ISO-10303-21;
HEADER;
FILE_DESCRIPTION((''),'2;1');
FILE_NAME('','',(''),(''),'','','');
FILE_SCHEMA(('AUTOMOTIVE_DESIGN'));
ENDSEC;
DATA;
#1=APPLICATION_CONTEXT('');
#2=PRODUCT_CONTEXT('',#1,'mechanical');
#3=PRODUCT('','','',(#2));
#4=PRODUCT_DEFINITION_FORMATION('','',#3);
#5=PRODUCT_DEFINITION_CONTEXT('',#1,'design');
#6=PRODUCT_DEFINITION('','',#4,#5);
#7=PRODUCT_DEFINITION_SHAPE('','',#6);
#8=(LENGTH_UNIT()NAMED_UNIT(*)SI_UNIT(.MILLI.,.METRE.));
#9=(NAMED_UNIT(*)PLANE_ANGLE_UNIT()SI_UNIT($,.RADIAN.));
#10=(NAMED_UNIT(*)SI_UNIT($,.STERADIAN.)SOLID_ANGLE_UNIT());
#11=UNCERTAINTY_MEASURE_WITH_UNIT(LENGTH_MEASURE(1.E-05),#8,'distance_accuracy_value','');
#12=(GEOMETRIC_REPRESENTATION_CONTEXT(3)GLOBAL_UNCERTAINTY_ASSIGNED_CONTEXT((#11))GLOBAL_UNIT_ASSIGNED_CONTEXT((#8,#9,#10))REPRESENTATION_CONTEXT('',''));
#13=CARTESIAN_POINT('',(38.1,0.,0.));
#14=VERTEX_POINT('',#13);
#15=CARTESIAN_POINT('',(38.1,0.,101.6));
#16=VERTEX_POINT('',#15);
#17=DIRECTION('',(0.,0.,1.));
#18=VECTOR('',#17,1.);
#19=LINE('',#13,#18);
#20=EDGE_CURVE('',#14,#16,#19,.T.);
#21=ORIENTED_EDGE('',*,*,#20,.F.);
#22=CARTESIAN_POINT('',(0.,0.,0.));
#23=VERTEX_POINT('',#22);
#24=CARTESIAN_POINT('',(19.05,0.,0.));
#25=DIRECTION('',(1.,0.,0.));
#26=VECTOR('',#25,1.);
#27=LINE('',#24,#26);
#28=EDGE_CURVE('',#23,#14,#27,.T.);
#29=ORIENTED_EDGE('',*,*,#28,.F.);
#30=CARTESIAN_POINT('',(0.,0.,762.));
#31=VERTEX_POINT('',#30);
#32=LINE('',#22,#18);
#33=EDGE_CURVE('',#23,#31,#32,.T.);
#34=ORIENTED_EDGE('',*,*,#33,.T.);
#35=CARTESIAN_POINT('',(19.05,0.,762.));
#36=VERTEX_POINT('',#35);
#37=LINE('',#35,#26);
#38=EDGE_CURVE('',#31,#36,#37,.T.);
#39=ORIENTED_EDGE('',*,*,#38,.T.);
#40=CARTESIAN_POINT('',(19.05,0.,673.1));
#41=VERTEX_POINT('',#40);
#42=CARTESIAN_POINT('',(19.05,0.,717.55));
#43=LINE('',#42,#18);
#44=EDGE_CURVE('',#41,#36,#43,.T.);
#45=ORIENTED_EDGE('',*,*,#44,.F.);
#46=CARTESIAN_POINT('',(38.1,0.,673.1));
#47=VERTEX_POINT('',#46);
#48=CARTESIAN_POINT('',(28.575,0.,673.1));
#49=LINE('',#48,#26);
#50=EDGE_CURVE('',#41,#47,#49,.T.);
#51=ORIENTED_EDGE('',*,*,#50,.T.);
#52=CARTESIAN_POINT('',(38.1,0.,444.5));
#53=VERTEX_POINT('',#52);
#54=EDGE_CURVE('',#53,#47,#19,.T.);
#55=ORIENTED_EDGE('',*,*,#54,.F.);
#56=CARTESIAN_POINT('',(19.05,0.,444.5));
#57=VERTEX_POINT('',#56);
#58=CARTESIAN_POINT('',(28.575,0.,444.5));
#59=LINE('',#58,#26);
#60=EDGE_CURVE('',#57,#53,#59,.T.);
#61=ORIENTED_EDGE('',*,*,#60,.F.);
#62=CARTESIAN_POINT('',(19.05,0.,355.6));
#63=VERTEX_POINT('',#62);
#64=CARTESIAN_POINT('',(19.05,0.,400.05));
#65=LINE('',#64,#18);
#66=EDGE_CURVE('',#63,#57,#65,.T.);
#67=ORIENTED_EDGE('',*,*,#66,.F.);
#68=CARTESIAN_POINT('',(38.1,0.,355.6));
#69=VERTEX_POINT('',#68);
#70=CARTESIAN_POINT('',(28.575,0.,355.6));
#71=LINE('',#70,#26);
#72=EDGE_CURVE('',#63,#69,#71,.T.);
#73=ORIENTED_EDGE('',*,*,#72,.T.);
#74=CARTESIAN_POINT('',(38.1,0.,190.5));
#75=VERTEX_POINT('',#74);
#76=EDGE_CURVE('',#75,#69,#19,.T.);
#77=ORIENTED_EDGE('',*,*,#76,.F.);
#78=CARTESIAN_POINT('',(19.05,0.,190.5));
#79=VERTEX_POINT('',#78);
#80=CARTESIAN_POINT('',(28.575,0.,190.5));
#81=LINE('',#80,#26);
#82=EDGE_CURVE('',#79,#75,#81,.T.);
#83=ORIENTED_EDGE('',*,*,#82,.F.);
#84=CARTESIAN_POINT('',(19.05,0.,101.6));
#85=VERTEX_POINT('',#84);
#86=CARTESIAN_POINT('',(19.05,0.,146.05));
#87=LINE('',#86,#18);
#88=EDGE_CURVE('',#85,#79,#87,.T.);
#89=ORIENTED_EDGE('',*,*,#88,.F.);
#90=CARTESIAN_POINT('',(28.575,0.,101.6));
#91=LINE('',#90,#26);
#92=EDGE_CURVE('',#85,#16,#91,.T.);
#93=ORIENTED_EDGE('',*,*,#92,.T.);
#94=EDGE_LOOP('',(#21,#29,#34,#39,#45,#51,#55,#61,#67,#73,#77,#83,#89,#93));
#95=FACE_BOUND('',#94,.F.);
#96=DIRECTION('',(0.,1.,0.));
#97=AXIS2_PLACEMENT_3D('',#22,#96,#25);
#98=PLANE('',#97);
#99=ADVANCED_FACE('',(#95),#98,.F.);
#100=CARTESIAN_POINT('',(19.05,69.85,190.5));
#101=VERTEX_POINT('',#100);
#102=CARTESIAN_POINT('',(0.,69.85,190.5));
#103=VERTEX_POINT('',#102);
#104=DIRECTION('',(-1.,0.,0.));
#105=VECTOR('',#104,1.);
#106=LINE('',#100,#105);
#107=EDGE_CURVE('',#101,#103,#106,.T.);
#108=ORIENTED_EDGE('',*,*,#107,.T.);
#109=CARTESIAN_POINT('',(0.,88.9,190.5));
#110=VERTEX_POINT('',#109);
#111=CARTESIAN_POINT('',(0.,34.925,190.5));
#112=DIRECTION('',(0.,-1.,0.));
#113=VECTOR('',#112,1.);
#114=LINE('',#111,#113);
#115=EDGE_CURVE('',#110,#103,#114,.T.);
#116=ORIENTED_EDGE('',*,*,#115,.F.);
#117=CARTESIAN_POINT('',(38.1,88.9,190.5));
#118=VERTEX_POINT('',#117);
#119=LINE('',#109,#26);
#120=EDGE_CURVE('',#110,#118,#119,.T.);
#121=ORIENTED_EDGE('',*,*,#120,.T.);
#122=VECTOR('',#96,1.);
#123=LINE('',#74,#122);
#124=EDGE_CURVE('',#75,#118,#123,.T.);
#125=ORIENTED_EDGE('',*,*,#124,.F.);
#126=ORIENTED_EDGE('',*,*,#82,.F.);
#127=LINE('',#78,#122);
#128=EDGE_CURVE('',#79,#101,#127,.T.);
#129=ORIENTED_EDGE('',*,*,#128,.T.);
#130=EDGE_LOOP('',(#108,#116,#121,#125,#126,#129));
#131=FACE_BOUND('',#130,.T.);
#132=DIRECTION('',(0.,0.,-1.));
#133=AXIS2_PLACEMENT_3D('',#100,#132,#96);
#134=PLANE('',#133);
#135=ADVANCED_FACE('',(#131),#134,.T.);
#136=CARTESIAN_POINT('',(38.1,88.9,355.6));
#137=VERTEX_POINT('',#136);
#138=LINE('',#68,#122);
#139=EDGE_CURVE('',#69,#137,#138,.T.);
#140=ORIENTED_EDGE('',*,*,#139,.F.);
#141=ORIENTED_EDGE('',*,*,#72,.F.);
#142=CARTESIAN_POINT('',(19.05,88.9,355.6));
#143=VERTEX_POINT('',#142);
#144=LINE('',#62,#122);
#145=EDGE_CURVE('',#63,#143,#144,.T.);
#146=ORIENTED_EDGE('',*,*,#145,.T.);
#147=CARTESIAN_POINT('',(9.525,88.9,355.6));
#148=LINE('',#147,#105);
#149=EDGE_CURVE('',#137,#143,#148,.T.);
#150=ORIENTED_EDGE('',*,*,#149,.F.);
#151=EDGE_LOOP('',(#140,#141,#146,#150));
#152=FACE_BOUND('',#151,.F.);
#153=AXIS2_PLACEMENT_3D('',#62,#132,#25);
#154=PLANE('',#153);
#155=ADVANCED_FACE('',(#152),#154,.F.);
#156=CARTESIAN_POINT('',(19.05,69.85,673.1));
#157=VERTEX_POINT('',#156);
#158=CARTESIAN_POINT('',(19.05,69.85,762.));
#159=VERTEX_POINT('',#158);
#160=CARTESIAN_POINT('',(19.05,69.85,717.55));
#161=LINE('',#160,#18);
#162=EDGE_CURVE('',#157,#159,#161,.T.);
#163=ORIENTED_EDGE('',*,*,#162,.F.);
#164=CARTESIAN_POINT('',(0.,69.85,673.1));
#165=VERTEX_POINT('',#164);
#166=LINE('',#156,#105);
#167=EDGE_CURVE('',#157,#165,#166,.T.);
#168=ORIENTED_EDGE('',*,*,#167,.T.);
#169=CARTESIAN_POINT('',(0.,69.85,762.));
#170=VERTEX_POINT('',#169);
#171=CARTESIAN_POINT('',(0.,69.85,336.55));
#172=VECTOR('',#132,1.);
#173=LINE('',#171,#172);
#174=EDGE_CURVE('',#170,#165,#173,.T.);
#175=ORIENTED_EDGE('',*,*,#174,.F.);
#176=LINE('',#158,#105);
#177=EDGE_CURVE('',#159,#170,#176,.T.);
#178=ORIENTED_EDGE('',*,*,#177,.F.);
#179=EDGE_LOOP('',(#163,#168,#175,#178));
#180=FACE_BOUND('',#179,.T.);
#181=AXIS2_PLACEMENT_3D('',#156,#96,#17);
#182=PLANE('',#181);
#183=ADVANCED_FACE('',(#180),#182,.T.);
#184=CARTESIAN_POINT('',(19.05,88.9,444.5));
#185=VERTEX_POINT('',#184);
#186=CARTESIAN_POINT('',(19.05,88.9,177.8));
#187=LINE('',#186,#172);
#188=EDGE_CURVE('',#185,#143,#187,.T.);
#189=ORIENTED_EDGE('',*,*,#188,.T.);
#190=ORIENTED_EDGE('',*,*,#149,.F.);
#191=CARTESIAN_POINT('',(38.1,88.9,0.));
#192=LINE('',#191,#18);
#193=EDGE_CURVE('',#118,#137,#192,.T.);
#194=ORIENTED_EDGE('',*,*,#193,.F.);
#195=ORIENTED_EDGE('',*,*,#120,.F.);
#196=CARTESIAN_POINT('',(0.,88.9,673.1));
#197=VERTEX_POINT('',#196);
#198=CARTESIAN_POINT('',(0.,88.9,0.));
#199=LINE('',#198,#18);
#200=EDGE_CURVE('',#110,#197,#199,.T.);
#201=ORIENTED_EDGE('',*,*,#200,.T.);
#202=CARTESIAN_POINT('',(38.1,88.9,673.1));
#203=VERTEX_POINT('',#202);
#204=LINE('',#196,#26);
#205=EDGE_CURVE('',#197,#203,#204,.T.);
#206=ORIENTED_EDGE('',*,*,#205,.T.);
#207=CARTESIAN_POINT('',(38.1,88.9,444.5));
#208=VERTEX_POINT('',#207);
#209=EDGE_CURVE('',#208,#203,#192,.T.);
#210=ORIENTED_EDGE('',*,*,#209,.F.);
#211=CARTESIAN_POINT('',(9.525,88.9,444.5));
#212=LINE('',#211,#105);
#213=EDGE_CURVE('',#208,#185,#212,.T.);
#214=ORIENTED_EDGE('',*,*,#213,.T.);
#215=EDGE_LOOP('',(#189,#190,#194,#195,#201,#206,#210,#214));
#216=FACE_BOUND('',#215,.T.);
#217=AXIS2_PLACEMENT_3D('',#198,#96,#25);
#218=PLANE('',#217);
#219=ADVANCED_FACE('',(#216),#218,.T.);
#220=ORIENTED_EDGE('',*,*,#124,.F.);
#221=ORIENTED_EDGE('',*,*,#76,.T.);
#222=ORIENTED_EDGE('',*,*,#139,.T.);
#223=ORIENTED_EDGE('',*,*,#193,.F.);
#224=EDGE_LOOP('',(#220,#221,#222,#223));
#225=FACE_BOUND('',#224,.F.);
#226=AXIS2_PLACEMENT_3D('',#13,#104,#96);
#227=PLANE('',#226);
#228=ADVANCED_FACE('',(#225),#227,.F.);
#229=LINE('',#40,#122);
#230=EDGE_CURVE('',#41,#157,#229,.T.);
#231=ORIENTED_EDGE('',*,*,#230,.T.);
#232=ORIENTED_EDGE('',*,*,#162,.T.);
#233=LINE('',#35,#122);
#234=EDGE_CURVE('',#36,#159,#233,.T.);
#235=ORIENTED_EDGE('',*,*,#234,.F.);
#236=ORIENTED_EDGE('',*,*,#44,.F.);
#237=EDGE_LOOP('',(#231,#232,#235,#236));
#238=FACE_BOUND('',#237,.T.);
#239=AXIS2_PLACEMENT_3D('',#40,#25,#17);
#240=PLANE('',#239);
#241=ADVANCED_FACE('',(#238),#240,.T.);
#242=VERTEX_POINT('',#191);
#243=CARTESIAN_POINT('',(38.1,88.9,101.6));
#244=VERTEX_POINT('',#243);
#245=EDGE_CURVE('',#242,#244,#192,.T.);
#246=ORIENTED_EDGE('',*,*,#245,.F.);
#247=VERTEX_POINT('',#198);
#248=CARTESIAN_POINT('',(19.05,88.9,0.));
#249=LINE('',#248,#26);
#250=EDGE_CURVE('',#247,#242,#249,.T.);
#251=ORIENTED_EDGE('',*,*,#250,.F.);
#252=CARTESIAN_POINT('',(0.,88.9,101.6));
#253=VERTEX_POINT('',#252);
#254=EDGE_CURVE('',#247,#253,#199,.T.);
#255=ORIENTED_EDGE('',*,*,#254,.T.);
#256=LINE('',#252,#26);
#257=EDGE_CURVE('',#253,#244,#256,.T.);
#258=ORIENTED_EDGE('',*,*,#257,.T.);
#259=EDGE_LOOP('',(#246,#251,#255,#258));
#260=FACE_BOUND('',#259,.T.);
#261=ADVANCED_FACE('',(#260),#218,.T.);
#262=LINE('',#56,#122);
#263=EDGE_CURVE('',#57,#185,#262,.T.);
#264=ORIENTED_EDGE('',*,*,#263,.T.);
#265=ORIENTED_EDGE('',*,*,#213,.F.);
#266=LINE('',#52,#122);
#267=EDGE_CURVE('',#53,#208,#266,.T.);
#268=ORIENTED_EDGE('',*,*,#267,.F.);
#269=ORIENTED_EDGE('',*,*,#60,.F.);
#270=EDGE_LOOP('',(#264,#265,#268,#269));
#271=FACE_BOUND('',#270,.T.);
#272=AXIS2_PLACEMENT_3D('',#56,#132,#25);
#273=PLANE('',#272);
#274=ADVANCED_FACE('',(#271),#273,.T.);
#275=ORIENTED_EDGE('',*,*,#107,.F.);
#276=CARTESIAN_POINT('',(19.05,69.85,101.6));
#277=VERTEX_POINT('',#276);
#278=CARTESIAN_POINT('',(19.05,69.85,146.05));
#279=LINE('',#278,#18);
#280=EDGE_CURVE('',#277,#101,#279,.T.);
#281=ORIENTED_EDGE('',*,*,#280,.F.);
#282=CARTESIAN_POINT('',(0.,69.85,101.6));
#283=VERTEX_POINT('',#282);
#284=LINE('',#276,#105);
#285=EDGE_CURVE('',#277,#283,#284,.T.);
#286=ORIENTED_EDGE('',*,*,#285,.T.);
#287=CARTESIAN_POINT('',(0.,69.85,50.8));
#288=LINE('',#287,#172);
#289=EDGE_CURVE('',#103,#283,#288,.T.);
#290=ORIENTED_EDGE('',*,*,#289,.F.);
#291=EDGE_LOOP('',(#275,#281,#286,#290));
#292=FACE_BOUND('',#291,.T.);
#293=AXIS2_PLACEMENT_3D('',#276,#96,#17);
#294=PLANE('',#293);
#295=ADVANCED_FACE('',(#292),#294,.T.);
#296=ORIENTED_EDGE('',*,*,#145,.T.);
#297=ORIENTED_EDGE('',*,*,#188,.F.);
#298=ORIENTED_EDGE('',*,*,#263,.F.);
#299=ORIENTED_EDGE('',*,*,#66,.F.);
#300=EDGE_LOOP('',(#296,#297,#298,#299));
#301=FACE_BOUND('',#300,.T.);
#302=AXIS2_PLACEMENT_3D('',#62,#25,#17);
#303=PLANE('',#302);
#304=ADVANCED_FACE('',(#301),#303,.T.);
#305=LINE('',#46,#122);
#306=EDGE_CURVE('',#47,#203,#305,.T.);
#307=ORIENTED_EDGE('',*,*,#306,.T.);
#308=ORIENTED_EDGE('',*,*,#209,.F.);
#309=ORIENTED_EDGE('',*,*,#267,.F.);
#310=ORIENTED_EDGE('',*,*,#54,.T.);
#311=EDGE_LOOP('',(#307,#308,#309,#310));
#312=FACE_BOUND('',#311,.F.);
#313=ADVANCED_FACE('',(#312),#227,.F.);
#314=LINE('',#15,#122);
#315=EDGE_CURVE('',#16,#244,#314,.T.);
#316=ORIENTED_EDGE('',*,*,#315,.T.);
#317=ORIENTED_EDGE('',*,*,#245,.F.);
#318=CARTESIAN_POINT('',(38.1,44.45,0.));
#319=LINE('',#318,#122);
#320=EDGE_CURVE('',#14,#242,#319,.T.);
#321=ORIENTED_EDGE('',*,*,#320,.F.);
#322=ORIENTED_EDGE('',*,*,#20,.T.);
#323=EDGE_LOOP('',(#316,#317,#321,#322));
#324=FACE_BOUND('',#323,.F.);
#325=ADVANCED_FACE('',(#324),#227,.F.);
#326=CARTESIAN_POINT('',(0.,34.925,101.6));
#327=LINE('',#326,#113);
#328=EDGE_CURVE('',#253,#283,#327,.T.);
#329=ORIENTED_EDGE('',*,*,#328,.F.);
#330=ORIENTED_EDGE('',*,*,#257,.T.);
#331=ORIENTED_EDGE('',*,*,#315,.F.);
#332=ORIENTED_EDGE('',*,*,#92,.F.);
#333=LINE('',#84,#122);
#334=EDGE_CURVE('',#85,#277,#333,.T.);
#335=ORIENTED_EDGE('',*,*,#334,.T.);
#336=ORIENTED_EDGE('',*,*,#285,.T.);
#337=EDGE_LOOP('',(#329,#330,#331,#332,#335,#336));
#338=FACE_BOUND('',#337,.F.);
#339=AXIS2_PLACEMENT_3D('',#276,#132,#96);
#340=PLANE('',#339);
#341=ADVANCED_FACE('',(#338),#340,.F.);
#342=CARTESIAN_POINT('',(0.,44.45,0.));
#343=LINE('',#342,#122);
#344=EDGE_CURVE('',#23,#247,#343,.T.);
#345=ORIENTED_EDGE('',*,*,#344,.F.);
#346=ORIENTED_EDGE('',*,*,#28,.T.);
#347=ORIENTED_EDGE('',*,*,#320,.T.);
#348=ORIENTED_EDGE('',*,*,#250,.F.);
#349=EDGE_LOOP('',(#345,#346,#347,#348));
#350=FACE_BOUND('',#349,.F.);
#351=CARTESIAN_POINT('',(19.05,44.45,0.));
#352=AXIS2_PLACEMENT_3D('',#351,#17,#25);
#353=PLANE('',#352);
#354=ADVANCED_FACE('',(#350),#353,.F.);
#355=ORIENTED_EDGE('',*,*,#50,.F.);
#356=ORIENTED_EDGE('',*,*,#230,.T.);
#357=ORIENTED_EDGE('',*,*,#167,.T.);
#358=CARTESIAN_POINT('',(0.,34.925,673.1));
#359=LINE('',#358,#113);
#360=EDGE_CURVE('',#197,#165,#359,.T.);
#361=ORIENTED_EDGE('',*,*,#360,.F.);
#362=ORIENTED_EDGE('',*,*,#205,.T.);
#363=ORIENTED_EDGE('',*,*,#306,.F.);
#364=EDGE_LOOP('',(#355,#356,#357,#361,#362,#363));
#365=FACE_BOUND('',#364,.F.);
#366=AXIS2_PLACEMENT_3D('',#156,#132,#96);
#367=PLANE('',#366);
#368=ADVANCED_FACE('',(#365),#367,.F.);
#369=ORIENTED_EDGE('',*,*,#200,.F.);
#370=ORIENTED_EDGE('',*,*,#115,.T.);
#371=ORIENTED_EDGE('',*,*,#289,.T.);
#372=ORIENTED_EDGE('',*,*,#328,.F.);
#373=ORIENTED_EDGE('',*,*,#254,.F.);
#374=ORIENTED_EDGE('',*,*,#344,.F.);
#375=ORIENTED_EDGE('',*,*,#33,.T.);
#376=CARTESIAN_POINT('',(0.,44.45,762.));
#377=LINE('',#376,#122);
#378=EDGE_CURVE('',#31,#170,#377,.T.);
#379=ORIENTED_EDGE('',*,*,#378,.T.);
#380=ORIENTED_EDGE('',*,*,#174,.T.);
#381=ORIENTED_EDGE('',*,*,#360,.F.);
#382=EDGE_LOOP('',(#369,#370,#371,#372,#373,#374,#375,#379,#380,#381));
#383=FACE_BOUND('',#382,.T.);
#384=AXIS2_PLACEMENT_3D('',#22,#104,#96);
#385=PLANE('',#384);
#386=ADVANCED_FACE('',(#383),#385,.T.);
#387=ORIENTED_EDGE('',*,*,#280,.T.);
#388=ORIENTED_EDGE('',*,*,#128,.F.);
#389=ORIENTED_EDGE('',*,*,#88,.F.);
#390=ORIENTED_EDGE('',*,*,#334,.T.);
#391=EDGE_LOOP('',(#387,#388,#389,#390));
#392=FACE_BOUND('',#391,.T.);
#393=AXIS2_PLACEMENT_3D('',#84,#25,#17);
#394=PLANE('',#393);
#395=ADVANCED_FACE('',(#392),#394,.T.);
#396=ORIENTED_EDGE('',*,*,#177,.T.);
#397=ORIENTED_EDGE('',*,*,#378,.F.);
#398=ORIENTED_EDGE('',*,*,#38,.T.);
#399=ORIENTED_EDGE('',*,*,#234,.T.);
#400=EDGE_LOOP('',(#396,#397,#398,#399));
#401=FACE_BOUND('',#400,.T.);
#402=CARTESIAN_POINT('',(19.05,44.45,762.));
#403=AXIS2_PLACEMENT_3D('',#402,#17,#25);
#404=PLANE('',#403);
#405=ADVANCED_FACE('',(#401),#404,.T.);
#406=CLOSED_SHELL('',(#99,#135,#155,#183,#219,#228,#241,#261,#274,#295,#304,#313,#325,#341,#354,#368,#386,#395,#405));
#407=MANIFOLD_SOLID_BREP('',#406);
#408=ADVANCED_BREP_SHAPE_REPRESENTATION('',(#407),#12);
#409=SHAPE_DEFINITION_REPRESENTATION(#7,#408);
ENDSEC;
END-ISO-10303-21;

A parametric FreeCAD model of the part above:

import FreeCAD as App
import Part
import Sketcher
Q = App.Units.Quantity


def add_polygon(sketch, points):
    """Adds a closed chain of lines whose ends are joined by coincident constraints."""
    first, n = sketch.GeometryCount, len(points)
    for a, b in zip(points, points[1:] + points[:1]):
        sketch.addGeometry(Part.LineSegment(App.Vector(*a, 0), App.Vector(*b, 0)), False)
    for i in range(n):
        sketch.addConstraint(Sketcher.Constraint("Coincident", first + i, 2, first + (i + 1) % n, 1))

doc = App.newDocument("Part")
body = doc.addObject("PartDesign::Body", "Body")

# Sketch on XY plane
sketch1 = doc.addObject("Sketcher::SketchObject", "Sketch")
body.addObject(sketch1)
sketch1.AttachmentSupport = (doc.XY_Plane, [""])
sketch1.MapMode = "FlatFace"
add_polygon(sketch1, [(0, 89), (0, 0), (38, 0), (38, 89)])  # lines 0-3
sketch1.addConstraint([
    Sketcher.Constraint("Vertical", 0),
    Sketcher.Constraint("Horizontal", 1),
    Sketcher.Constraint("Vertical", 2),
    Sketcher.Constraint("Horizontal", 3),
    Sketcher.Constraint("Coincident", 0, 2, -1, 1),
    Sketcher.Constraint("DistanceX", 1, 1, 1, 2, Q("1.5 in")),
    Sketcher.Constraint("DistanceY", 0, 2, 0, 1, Q("3.5 in")),
])
pad1 = doc.addObject("PartDesign::Pad", "Pad")
body.addObject(pad1)
pad1.Profile = sketch1
pad1.Length = Q("30 in")

# Sketch on XZ plane
sketch2 = doc.addObject("Sketcher::SketchObject", "Sketch001")
body.addObject(sketch2)
sketch2.AttachmentSupport = (doc.XZ_Plane, [""])
sketch2.MapMode = "FlatFace"
add_polygon(sketch2, [(19, 762), (19, 673), (38, 673), (38, 762)])  # lines 0-3
sketch2.addConstraint([
    Sketcher.Constraint("Vertical", 0),
    Sketcher.Constraint("Horizontal", 1),
    Sketcher.Constraint("Vertical", 2),
    Sketcher.Constraint("Horizontal", 3),
    Sketcher.Constraint("DistanceY", 0, 2, 0, 1, Q("3.5 in")),
    Sketcher.Constraint("DistanceY", -1, 1, 2, 2, Q("30 in")),
    Sketcher.Constraint("DistanceX", 1, 1, 1, 2, Q("0.75 in")),
    Sketcher.Constraint("DistanceX", -1, 1, 1, 2, Q("1.5 in")),
])
pocket1 = doc.addObject("PartDesign::Pocket", "Pocket")
body.addObject(pocket1)
pocket1.Profile = sketch2
pocket1.Type = "ThroughAll"

# Sketch on XZ plane
sketch3 = doc.addObject("Sketcher::SketchObject", "Sketch002")
body.addObject(sketch3)
sketch3.AttachmentSupport = (doc.XZ_Plane, [""])
sketch3.MapMode = "FlatFace"
add_polygon(sketch3, [(19, 190), (19, 102), (38, 102), (38, 190)])  # lines 0-3
sketch3.addConstraint([
    Sketcher.Constraint("Vertical", 0),
    Sketcher.Constraint("Horizontal", 1),
    Sketcher.Constraint("Vertical", 2),
    Sketcher.Constraint("Horizontal", 3),
    Sketcher.Constraint("DistanceY", 0, 2, 0, 1, Q("3.5 in")),
    Sketcher.Constraint("DistanceY", -1, 1, 0, 2, Q("4 in")),
    Sketcher.Constraint("DistanceX", 1, 1, 1, 2, Q("0.75 in")),
    Sketcher.Constraint("DistanceX", -1, 1, 1, 2, Q("1.5 in")),
])
pocket2 = doc.addObject("PartDesign::Pocket", "Pocket001")
body.addObject(pocket2)
pocket2.Profile = sketch3
pocket2.Type = "ThroughAll"

# Sketch on XZ plane
sketch4 = doc.addObject("Sketcher::SketchObject", "Sketch003")
body.addObject(sketch4)
sketch4.AttachmentSupport = (doc.XZ_Plane, [""])
sketch4.MapMode = "FlatFace"
add_polygon(sketch4, [(19, 444), (19, 356), (38, 356), (38, 444)])  # lines 0-3
sketch4.addConstraint([
    Sketcher.Constraint("Vertical", 0),
    Sketcher.Constraint("Horizontal", 1),
    Sketcher.Constraint("Vertical", 2),
    Sketcher.Constraint("Horizontal", 3),
    Sketcher.Constraint("DistanceY", 0, 2, 0, 1, Q("3.5 in")),
    Sketcher.Constraint("DistanceY", -1, 1, 0, 2, Q("14 in")),
    Sketcher.Constraint("DistanceX", 1, 1, 1, 2, Q("0.75 in")),
    Sketcher.Constraint("DistanceX", -1, 1, 1, 2, Q("1.5 in")),
])
pocket3 = doc.addObject("PartDesign::Pocket", "Pocket002")
body.addObject(pocket3)
pocket3.Profile = sketch4
pocket3.Type = "ThroughAll"

# Sketch on YZ plane
sketch5 = doc.addObject("Sketcher::SketchObject", "Sketch004")
body.addObject(sketch5)
sketch5.AttachmentSupport = (doc.YZ_Plane, [""])
sketch5.MapMode = "FlatFace"
sketch5.AttachmentOffset = App.Placement(App.Vector(0, 0, 0.75 * 25.4), App.Rotation())
add_polygon(sketch5, [(70, 762), (70, 673), (89, 673), (89, 762)])  # lines 0-3
sketch5.addConstraint([
    Sketcher.Constraint("Vertical", 0),
    Sketcher.Constraint("Horizontal", 1),
    Sketcher.Constraint("Vertical", 2),
    Sketcher.Constraint("Horizontal", 3),
    Sketcher.Constraint("DistanceY", 0, 2, 0, 1, Q("3.5 in")),
    Sketcher.Constraint("DistanceY", -1, 1, 2, 2, Q("30 in")),
    Sketcher.Constraint("DistanceX", 1, 1, 1, 2, Q("0.75 in")),
    Sketcher.Constraint("DistanceX", -1, 1, 1, 2, Q("3.5 in")),
])
pocket4 = doc.addObject("PartDesign::Pocket", "Pocket003")
body.addObject(pocket4)
pocket4.Profile = sketch5
pocket4.Type = "ThroughAll"

# Sketch on YZ plane
sketch6 = doc.addObject("Sketcher::SketchObject", "Sketch005")
body.addObject(sketch6)
sketch6.AttachmentSupport = (doc.YZ_Plane, [""])
sketch6.MapMode = "FlatFace"
sketch6.AttachmentOffset = App.Placement(App.Vector(0, 0, 0.75 * 25.4), App.Rotation())
add_polygon(sketch6, [(70, 190), (70, 102), (89, 102), (89, 190)])  # lines 0-3
sketch6.addConstraint([
    Sketcher.Constraint("Vertical", 0),
    Sketcher.Constraint("Horizontal", 1),
    Sketcher.Constraint("Vertical", 2),
    Sketcher.Constraint("Horizontal", 3),
    Sketcher.Constraint("DistanceY", 0, 2, 0, 1, Q("3.5 in")),
    Sketcher.Constraint("DistanceY", -1, 1, 0, 2, Q("4 in")),
    Sketcher.Constraint("DistanceX", 1, 1, 1, 2, Q("0.75 in")),
    Sketcher.Constraint("DistanceX", -1, 1, 1, 2, Q("3.5 in")),
])
pocket5 = doc.addObject("PartDesign::Pocket", "Pocket004")
body.addObject(pocket5)
pocket5.Profile = sketch6
pocket5.Type = "ThroughAll"

doc.recompute()
